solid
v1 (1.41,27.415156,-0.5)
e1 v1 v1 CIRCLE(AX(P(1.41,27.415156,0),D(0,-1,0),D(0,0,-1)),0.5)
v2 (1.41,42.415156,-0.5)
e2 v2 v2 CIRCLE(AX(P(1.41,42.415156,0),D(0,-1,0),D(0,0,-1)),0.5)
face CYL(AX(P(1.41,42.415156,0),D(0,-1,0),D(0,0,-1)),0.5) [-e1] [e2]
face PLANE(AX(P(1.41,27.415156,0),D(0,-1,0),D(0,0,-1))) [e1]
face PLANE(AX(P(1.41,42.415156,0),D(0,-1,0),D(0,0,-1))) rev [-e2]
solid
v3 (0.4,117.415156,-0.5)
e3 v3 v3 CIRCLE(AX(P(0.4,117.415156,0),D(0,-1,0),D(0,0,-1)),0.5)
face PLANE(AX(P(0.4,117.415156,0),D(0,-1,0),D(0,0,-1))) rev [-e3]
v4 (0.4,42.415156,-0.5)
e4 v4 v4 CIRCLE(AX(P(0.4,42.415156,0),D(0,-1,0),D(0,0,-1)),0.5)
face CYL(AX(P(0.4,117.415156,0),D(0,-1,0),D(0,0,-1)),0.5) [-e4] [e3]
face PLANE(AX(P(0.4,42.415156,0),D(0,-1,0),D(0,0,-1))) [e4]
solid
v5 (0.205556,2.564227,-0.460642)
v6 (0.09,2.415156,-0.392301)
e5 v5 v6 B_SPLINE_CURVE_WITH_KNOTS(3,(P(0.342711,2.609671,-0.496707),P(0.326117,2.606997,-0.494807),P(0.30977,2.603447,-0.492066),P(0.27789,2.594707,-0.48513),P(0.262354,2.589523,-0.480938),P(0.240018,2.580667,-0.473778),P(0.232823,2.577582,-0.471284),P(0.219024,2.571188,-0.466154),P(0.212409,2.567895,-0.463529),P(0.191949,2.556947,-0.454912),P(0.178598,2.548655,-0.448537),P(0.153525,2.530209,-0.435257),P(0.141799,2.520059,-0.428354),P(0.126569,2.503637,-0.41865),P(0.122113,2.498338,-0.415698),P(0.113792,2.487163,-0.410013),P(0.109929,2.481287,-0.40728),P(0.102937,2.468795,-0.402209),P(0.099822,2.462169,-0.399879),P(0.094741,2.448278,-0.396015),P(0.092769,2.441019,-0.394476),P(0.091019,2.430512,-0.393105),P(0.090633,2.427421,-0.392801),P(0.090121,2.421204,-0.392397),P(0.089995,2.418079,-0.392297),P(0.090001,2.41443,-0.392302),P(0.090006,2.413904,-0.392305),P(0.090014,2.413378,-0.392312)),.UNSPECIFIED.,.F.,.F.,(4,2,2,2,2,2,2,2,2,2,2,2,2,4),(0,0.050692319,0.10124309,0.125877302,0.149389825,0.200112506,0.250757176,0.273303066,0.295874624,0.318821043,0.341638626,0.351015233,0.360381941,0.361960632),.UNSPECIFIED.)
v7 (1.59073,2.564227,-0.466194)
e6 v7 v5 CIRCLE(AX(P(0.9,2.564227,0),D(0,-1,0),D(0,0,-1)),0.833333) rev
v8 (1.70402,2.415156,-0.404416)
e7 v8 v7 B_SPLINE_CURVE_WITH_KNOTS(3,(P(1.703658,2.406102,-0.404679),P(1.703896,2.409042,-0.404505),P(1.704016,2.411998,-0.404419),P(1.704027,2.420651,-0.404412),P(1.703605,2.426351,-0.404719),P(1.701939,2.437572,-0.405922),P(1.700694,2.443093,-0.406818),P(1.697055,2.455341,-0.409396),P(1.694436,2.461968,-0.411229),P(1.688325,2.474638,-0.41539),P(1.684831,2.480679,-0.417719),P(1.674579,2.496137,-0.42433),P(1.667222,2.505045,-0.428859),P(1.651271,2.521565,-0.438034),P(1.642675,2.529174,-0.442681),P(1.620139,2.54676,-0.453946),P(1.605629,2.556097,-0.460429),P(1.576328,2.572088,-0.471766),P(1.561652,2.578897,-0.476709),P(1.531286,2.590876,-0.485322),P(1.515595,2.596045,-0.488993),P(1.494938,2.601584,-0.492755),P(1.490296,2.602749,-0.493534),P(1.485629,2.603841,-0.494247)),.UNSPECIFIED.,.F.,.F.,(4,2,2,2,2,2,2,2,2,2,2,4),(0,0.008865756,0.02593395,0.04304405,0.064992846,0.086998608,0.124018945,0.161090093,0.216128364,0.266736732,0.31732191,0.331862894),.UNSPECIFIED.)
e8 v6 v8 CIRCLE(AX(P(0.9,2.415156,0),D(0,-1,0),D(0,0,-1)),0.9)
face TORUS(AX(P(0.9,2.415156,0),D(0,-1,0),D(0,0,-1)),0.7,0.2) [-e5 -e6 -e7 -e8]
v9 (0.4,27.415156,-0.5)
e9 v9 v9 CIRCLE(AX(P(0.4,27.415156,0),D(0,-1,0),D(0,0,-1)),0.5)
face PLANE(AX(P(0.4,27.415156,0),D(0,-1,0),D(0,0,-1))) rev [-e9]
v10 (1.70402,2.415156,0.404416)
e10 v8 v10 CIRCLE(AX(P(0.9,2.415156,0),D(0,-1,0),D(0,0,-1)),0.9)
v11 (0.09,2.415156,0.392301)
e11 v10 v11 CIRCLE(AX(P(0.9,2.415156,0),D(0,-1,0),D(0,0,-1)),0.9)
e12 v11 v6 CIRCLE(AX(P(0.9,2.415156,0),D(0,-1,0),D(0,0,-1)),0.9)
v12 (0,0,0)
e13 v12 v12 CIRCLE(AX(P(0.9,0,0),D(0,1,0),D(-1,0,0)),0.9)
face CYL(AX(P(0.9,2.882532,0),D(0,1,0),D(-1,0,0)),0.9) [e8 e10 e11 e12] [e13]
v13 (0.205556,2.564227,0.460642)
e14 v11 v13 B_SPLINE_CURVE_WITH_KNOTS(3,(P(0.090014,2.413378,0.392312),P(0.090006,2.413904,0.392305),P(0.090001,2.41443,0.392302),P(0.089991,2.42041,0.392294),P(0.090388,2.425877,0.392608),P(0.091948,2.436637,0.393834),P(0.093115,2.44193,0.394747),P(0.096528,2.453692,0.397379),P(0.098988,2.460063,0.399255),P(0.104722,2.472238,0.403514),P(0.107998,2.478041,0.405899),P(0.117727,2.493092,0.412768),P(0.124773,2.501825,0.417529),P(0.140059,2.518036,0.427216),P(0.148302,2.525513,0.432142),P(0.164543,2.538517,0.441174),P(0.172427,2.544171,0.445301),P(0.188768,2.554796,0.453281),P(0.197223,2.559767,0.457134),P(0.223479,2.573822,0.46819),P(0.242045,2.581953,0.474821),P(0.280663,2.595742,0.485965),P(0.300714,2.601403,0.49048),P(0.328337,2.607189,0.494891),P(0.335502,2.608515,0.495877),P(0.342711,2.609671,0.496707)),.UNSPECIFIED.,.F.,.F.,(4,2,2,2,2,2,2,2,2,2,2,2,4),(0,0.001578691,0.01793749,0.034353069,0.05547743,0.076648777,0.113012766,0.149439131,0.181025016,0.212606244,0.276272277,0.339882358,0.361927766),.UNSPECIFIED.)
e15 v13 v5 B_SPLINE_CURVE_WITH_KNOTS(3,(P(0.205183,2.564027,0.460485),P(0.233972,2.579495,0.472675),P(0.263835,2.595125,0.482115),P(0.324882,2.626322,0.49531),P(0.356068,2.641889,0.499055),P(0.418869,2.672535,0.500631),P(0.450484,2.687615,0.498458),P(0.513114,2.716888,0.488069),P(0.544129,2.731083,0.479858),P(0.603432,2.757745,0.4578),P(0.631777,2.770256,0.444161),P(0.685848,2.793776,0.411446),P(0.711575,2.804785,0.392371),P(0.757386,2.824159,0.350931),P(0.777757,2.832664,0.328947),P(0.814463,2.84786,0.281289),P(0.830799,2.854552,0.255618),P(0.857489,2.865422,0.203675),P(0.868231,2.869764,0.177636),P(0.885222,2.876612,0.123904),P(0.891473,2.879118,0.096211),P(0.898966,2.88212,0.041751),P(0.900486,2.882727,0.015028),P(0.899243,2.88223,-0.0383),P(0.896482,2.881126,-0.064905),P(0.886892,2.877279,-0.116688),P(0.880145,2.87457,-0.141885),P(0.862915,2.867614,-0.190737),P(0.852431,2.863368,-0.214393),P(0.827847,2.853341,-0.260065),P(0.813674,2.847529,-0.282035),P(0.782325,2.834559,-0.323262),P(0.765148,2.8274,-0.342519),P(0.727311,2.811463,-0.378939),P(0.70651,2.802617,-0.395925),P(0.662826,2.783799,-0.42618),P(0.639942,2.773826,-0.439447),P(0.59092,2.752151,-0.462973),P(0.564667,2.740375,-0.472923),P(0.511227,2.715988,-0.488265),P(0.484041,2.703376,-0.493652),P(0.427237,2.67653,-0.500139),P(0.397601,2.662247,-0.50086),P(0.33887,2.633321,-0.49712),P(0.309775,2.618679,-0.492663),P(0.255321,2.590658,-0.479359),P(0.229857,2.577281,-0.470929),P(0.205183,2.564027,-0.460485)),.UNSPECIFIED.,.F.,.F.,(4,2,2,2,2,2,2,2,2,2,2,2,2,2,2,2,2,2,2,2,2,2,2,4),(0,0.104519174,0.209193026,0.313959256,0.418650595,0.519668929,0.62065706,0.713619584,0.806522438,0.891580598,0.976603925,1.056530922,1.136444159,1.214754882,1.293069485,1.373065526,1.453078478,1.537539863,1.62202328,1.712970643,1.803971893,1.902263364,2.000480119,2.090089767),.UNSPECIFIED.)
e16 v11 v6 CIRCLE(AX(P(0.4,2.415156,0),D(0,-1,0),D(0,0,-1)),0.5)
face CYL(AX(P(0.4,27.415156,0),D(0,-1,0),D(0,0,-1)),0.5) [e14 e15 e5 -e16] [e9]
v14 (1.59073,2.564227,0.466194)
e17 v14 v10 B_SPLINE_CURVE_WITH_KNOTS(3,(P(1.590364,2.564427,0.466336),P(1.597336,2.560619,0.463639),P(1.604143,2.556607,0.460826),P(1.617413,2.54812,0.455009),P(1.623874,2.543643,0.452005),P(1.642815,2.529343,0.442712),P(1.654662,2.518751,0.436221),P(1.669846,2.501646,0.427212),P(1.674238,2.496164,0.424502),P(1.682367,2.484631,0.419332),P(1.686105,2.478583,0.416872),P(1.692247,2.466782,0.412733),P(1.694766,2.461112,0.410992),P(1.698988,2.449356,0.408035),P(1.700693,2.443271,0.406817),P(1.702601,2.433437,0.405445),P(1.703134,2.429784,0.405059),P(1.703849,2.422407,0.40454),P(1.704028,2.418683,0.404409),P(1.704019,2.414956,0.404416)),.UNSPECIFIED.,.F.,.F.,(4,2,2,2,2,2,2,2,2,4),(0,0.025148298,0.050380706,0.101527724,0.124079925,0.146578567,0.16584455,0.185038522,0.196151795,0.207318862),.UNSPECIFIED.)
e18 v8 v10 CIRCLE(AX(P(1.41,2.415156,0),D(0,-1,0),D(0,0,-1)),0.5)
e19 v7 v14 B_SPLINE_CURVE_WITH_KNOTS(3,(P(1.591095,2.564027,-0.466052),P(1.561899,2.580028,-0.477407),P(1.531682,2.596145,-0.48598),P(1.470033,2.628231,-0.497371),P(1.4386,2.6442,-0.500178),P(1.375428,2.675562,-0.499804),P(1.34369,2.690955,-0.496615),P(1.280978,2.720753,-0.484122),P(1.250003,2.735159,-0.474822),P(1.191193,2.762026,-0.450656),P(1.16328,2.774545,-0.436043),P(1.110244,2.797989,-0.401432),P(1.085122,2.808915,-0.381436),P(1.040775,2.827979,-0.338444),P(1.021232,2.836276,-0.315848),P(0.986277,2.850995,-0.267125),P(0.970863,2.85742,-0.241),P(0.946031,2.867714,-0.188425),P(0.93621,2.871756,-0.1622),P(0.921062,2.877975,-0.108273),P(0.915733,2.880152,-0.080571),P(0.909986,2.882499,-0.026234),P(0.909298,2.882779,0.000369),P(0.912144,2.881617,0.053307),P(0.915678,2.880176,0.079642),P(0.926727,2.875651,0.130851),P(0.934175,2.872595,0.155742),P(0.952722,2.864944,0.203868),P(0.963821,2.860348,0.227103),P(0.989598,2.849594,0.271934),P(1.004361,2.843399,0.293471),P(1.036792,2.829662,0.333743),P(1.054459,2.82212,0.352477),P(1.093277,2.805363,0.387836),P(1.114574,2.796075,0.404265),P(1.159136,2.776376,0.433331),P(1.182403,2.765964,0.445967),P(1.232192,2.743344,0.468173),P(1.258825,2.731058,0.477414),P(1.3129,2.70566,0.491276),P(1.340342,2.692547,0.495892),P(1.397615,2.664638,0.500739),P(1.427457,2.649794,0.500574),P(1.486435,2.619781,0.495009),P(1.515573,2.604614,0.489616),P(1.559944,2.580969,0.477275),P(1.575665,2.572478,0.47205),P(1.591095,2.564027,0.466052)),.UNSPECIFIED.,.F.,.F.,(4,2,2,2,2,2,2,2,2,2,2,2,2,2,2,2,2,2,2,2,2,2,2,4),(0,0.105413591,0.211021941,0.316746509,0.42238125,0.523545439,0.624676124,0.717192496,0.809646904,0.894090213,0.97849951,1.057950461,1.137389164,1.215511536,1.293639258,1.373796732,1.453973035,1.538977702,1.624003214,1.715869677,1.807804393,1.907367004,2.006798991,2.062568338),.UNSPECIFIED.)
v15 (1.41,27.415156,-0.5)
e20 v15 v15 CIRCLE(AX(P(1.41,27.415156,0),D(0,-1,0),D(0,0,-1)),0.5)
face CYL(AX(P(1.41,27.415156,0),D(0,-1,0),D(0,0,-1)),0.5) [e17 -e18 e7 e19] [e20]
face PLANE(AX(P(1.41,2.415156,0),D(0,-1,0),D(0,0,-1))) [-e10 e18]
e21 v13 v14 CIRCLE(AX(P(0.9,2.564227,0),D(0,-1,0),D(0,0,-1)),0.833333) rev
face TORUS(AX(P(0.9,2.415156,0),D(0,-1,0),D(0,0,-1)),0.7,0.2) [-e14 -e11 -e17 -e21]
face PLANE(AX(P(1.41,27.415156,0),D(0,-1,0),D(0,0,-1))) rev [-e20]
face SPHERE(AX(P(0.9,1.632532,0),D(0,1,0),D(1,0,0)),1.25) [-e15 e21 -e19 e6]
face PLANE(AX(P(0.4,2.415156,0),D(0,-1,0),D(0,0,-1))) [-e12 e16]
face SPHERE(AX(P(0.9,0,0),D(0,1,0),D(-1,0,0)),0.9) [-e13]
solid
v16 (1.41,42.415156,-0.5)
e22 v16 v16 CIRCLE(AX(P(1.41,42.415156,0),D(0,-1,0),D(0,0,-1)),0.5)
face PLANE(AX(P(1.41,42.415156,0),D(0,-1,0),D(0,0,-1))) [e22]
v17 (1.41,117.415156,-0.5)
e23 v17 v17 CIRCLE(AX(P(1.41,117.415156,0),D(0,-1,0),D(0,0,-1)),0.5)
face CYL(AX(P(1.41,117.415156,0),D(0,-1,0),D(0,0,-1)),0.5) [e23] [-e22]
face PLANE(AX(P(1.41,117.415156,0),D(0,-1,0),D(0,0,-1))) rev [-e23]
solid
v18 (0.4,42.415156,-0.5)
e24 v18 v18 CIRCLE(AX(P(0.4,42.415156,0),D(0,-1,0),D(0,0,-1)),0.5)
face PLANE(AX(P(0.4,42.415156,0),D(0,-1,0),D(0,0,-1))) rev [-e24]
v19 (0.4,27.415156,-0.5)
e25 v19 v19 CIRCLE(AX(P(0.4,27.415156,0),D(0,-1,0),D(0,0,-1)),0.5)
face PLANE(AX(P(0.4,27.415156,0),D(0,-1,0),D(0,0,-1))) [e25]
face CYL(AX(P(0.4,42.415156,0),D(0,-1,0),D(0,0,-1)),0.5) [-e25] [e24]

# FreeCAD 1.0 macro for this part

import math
import FreeCAD as App
import Part
import Sketcher

V = App.Vector
Q = App.Units.Quantity


def edges_at(feature, points):
    """Names of the edges that pass closest to the given points."""
    edges = feature.Shape.Edges
    near = lambda p: min(range(len(edges)), key=lambda i: edges[i].distToShape(Part.Vertex(*p))[0])
    return sorted({f"Edge{near(p) + 1}" for p in points})

doc = App.newDocument("Part")
body = doc.addObject("PartDesign::Body", "Body")

# Sketch on XY plane
sketch1 = body.newObject("Sketcher::SketchObject", "Sketch")
sketch1.AttachmentSupport = (doc.getObject("XY_Plane"), [""])
sketch1.MapMode = "FlatFace"
sketch1.addGeometry(Part.LineSegment(V(0, 2.5, 0), V(0, 0, 0)), False)
sketch1.addGeometry(Part.ArcOfCircle(Part.Circle(V(0.9, 0, 0), V(0, 0, 1), 0.9), math.radians(180), math.radians(270)), False)
sketch1.addGeometry(Part.LineSegment(V(0.9, -0.9, 0), V(0.9, 2.9, 0)), False)
sketch1.addGeometry(Part.ArcOfCircle(Part.Circle(V(0.9, 1.6, 0), V(0, 0, 1), 1.2), math.radians(90), math.radians(136)), False)
sketch1.addGeometry(Part.LineSegment(V(0.9, 2.9, 0), V(0.9, -0.9, 0)), True)  # axis
sketch1.addConstraint(Sketcher.Constraint("Tangent", 0, 2, 1, 1))
sketch1.addConstraint(Sketcher.Constraint("Coincident", 1, 2, 2, 1))
sketch1.addConstraint(Sketcher.Constraint("Coincident", 2, 2, 3, 1))
sketch1.addConstraint(Sketcher.Constraint("Coincident", 3, 2, 0, 1))
sketch1.addConstraint(Sketcher.Constraint("Vertical", 0))
sketch1.addConstraint(Sketcher.Constraint("Vertical", 2))
sketch1.addConstraint(Sketcher.Constraint("Vertical", 4))
sketch1.addConstraint(Sketcher.Constraint("Coincident", 0, 2, -1, 1))
sketch1.addConstraint(Sketcher.Constraint("Coincident", 4, 1, 2, 2))
sketch1.addConstraint(Sketcher.Constraint("Vertical", 1, 3, 3, 3))
sketch1.addConstraint(Sketcher.Constraint("Vertical", 3, 3, 1, 2))
sketch1.addConstraint(Sketcher.Constraint("Equal", 2, 4))
sketch1.addConstraint(Sketcher.Constraint("Radius", 1, Q("0.9 mm")))
sketch1.addConstraint(Sketcher.Constraint("Radius", 3, Q("1.25 mm")))
sketch1.addConstraint(Sketcher.Constraint("DistanceY", 0, 2, 0, 1, Q("2.5 mm")))
revolution = body.newObject("PartDesign::Revolution", "Revolution")
revolution.Profile = sketch1
revolution.ReferenceAxis = (sketch1, ["Axis0"])
revolution.Angle = 360
doc.recompute()

fillet = body.newObject("PartDesign::Fillet", "Fillet")
fillet.Base = (revolution, edges_at(revolution, [(1.8, 2.5, 0)]))
fillet.Radius = 0.2

# Sketch on XZ plane
sketch2 = body.newObject("Sketcher::SketchObject", "Sketch001")
sketch2.AttachmentSupport = (doc.getObject("XZ_Plane"), [""])
sketch2.MapMode = "FlatFace"
sketch2.AttachmentOffset = App.Placement(V(0, 0, -2.415156), App.Rotation())
sketch2.addGeometry(Part.Circle(V(1.4, 0, 0), V(0, 0, 1), 0.5), False)
sketch2.addGeometry(Part.Circle(V(0.4, 0, 0), V(0, 0, 1), 0.5), False)
sketch2.addConstraint(Sketcher.Constraint("Equal", 0, 1))
sketch2.addConstraint(Sketcher.Constraint("PointOnObject", 0, 3, -1))
sketch2.addConstraint(Sketcher.Constraint("PointOnObject", 1, 3, -1))
sketch2.addConstraint(Sketcher.Constraint("Diameter", 0, Q("1 mm")))
sketch2.addConstraint(Sketcher.Constraint("DistanceX", -1, 1, 1, 3, Q("0.4 mm")))
sketch2.addConstraint(Sketcher.Constraint("DistanceX", -1, 1, 0, 3, Q("1.41 mm")))
pad1 = body.newObject("PartDesign::Pad", "Pad")
pad1.Profile = sketch2
pad1.Length = 25
pad1.Reversed = True
body2 = doc.addObject("PartDesign::Body", "Body001")

# Sketch on XZ plane
sketch3 = body2.newObject("Sketcher::SketchObject", "Sketch002")
sketch3.AttachmentSupport = (doc.getObject("XZ_Plane001"), [""])
sketch3.MapMode = "FlatFace"
sketch3.AttachmentOffset = App.Placement(V(0, 0, -27.415156), App.Rotation())
sketch3.addGeometry(Part.Circle(V(1.4, 0, 0), V(0, 0, 1), 0.5), False)
sketch3.addConstraint(Sketcher.Constraint("PointOnObject", 0, 3, -1))
sketch3.addConstraint(Sketcher.Constraint("Diameter", 0, Q("1 mm")))
sketch3.addConstraint(Sketcher.Constraint("DistanceX", -1, 1, 0, 3, Q("1.41 mm")))
pad2 = body2.newObject("PartDesign::Pad", "Pad001")
pad2.Profile = sketch3
pad2.Length = 15
pad2.Reversed = True
body3 = doc.addObject("PartDesign::Body", "Body002")

# Sketch on XZ plane
sketch4 = body3.newObject("Sketcher::SketchObject", "Sketch003")
sketch4.AttachmentSupport = (doc.getObject("XZ_Plane002"), [""])
sketch4.MapMode = "FlatFace"
sketch4.AttachmentOffset = App.Placement(V(0, 0, -27.415156), App.Rotation())
sketch4.addGeometry(Part.Circle(V(0.4, 0, 0), V(0, 0, 1), 0.5), False)
sketch4.addConstraint(Sketcher.Constraint("PointOnObject", 0, 3, -1))
sketch4.addConstraint(Sketcher.Constraint("Diameter", 0, Q("1 mm")))
sketch4.addConstraint(Sketcher.Constraint("DistanceX", -1, 1, 0, 3, Q("0.4 mm")))
pad3 = body3.newObject("PartDesign::Pad", "Pad002")
pad3.Profile = sketch4
pad3.Length = 15
pad3.Reversed = True
body4 = doc.addObject("PartDesign::Body", "Body003")

# Sketch on XZ plane
sketch5 = body4.newObject("Sketcher::SketchObject", "Sketch004")
sketch5.AttachmentSupport = (doc.getObject("XZ_Plane003"), [""])
sketch5.MapMode = "FlatFace"
sketch5.AttachmentOffset = App.Placement(V(0, 0, -42.415156), App.Rotation())
sketch5.addGeometry(Part.Circle(V(1.4, 0, 0), V(0, 0, 1), 0.5), False)
sketch5.addConstraint(Sketcher.Constraint("PointOnObject", 0, 3, -1))
sketch5.addConstraint(Sketcher.Constraint("Diameter", 0, Q("1 mm")))
sketch5.addConstraint(Sketcher.Constraint("DistanceX", -1, 1, 0, 3, Q("1.41 mm")))
pad4 = body4.newObject("PartDesign::Pad", "Pad003")
pad4.Profile = sketch5
pad4.Length = 75
pad4.Reversed = True
body5 = doc.addObject("PartDesign::Body", "Body004")

# Sketch on XZ plane
sketch6 = body5.newObject("Sketcher::SketchObject", "Sketch005")
sketch6.AttachmentSupport = (doc.getObject("XZ_Plane004"), [""])
sketch6.MapMode = "FlatFace"
sketch6.AttachmentOffset = App.Placement(V(0, 0, -42.415156), App.Rotation())
sketch6.addGeometry(Part.Circle(V(0.4, 0, 0), V(0, 0, 1), 0.5), False)
sketch6.addConstraint(Sketcher.Constraint("PointOnObject", 0, 3, -1))
sketch6.addConstraint(Sketcher.Constraint("Diameter", 0, Q("1 mm")))
sketch6.addConstraint(Sketcher.Constraint("DistanceX", -1, 1, 0, 3, Q("0.4 mm")))
pad5 = body5.newObject("PartDesign::Pad", "Pad004")
pad5.Profile = sketch6
pad5.Length = 75
pad5.Reversed = True

doc.recompute()
